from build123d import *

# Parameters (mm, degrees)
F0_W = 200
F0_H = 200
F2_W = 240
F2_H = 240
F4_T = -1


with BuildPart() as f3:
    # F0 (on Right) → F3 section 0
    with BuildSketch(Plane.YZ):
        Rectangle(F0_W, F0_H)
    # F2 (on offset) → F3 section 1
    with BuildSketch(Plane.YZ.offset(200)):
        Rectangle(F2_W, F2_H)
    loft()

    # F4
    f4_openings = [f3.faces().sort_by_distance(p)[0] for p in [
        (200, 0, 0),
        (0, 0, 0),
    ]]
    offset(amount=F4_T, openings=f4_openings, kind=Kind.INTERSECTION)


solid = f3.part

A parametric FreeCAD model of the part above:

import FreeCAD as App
import Part
import Sketcher
Q = App.Units.Quantity


def faces_at(feature, points):
    """Names of the faces that lie closest to the given points."""
    faces = feature.Shape.Faces
    near = lambda p: min(range(len(faces)), key=lambda i: faces[i].distToShape(Part.Vertex(*p))[0])
    return sorted({f"Face{near(p) + 1}" for p in points})


def add_polygon(sketch, points):
    """Adds a closed chain of lines whose ends are joined by coincident constraints."""
    first, n = sketch.GeometryCount, len(points)
    for a, b in zip(points, points[1:] + points[:1]):
        sketch.addGeometry(Part.LineSegment(App.Vector(*a, 0), App.Vector(*b, 0)), False)
    for i in range(n):
        sketch.addConstraint(Sketcher.Constraint("Coincident", first + i, 2, first + (i + 1) % n, 1))

doc = App.newDocument("Part")
body = doc.addObject("PartDesign::Body", "Body")

sketch1 = body.newObject("Sketcher::SketchObject", "Sketch")
sketch1.AttachmentSupport = (doc.getObject("YZ_Plane"), [""])
sketch1.MapMode = "FlatFace"
add_polygon(sketch1, [(-100, 100), (-100, -100), (100, -100), (100, 100)])
sketch1.addConstraint(Sketcher.Constraint("Vertical", 0))
sketch1.addConstraint(Sketcher.Constraint("Horizontal", 1))
sketch1.addConstraint(Sketcher.Constraint("Vertical", 2))
sketch1.addConstraint(Sketcher.Constraint("Horizontal", 3))
sketch1.addConstraint(Sketcher.Constraint("Symmetric", 0, 2, 2, 2, -1, 1))
sketch1.addConstraint(Sketcher.Constraint("Equal", 3, 0))
sketch1.addConstraint(Sketcher.Constraint("DistanceX", 1, 1, 1, 2, Q("200 mm")))

sketch2 = body.newObject("Sketcher::SketchObject", "Sketch001")
sketch2.AttachmentSupport = (doc.getObject("YZ_Plane"), [""])
sketch2.MapMode = "FlatFace"
sketch2.AttachmentOffset = App.Placement(App.Vector(0, 0, 200), App.Rotation())
add_polygon(sketch2, [(-120, 120), (-120, -120), (120, -120), (120, 120)])
sketch2.addConstraint(Sketcher.Constraint("Vertical", 0))
sketch2.addConstraint(Sketcher.Constraint("Horizontal", 1))
sketch2.addConstraint(Sketcher.Constraint("Vertical", 2))
sketch2.addConstraint(Sketcher.Constraint("Horizontal", 3))
sketch2.addConstraint(Sketcher.Constraint("Symmetric", 0, 2, 2, 2, -1, 1))
sketch2.addConstraint(Sketcher.Constraint("Equal", 3, 0))
sketch2.addConstraint(Sketcher.Constraint("DistanceX", 1, 1, 1, 2, Q("240 mm")))

additiveloft = body.newObject("PartDesign::AdditiveLoft", "AdditiveLoft")
additiveloft.Profile = sketch1
additiveloft.Sections = [sketch2]
doc.recompute()

thickness = body.newObject("PartDesign::Thickness", "Thickness")
thickness.Base = (additiveloft, faces_at(additiveloft, [(200, 0, 0), (0, 0, 0)]))
thickness.Value = 1
thickness.Reversed = True
thickness.Join = "Intersection"

doc.recompute()
